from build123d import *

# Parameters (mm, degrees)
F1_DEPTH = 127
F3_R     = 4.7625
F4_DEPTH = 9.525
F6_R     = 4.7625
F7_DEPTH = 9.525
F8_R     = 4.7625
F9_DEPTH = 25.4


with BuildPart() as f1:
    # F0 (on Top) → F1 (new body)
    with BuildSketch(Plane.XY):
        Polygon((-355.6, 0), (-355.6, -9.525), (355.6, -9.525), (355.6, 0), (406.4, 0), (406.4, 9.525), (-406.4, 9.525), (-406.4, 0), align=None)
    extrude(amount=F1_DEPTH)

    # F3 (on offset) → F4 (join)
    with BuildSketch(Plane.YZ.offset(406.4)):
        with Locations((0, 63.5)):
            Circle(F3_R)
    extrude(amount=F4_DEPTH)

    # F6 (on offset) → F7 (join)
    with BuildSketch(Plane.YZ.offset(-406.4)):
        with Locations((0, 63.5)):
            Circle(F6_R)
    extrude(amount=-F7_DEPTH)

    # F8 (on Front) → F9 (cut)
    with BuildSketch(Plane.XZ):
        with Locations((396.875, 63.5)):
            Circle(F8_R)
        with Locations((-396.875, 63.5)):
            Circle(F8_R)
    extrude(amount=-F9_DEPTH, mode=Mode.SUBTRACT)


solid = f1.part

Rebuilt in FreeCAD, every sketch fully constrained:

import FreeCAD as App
import Part
import Sketcher

V = App.Vector
Q = App.Units.Quantity


def add_polygon(sketch, points):
    """Adds a closed chain of lines whose ends are joined by coincident constraints."""
    first, n = sketch.GeometryCount, len(points)
    for a, b in zip(points, points[1:] + points[:1]):
        sketch.addGeometry(Part.LineSegment(App.Vector(*a, 0), App.Vector(*b, 0)), False)
    for i in range(n):
        sketch.addConstraint(Sketcher.Constraint("Coincident", first + i, 2, first + (i + 1) % n, 1))

doc = App.newDocument("Part")
body = doc.addObject("PartDesign::Body", "Body")

# Sketch on XY plane
sketch1 = body.newObject("Sketcher::SketchObject", "Sketch")
sketch1.AttachmentSupport = (doc.getObject("XY_Plane"), [""])
sketch1.MapMode = "FlatFace"
add_polygon(sketch1, [(-356, 0), (-356, -10), (356, -10), (356, 0), (406, 0), (406, 10), (-406, 10), (-406, 0)])  # lines 0-7
sketch1.addConstraint(Sketcher.Constraint("Vertical", 0))
sketch1.addConstraint(Sketcher.Constraint("Horizontal", 1))
sketch1.addConstraint(Sketcher.Constraint("Vertical", 2))
sketch1.addConstraint(Sketcher.Constraint("Horizontal", 3))
sketch1.addConstraint(Sketcher.Constraint("Vertical", 4))
sketch1.addConstraint(Sketcher.Constraint("Horizontal", 5))
sketch1.addConstraint(Sketcher.Constraint("Vertical", 6))
sketch1.addConstraint(Sketcher.Constraint("Horizontal", 7))
sketch1.addConstraint(Sketcher.Constraint("Symmetric", 3, 2, 6, 2, -1, 1))
sketch1.addConstraint(Sketcher.Constraint("Symmetric", 2, 2, 7, 2, -2))
sketch1.addConstraint(Sketcher.Constraint("Equal", 2, 4))
sketch1.addConstraint(Sketcher.Constraint("DistanceX", 1, 1, 1, 2, Q("28 in")))
sketch1.addConstraint(Sketcher.Constraint("DistanceX", 3, 1, 3, 2, Q("2 in")))
sketch1.addConstraint(Sketcher.Constraint("DistanceY", 0, 2, 0, 1, Q("0.375 in")))
pad1 = body.newObject("PartDesign::Pad", "Pad")
pad1.Profile = sketch1
pad1.Length = Q("5 in")

# Sketch on YZ plane
sketch2 = body.newObject("Sketcher::SketchObject", "Sketch001")
sketch2.AttachmentSupport = (doc.getObject("YZ_Plane"), [""])
sketch2.MapMode = "FlatFace"
sketch2.AttachmentOffset = App.Placement(V(0, 0, 16 * 25.4), App.Rotation())
sketch2.addGeometry(Part.Circle(V(0, 63.5, 0), V(0, 0, 1), 4.8), False)
sketch2.addConstraint(Sketcher.Constraint("PointOnObject", 0, 3, -2))
sketch2.addConstraint(Sketcher.Constraint("Diameter", 0, Q("0.375 in")))
sketch2.addConstraint(Sketcher.Constraint("DistanceY", -1, 1, 0, 3, Q("2.5 in")))
pad2 = body.newObject("PartDesign::Pad", "Pad001")
pad2.Profile = sketch2
pad2.Length = Q("0.375 in")

# Sketch on YZ plane
sketch3 = body.newObject("Sketcher::SketchObject", "Sketch002")
sketch3.AttachmentSupport = (doc.getObject("YZ_Plane"), [""])
sketch3.MapMode = "FlatFace"
sketch3.AttachmentOffset = App.Placement(V(0, 0, -16 * 25.4), App.Rotation())
sketch3.addGeometry(Part.Circle(V(0, 63.5, 0), V(0, 0, 1), 4.8), False)
sketch3.addConstraint(Sketcher.Constraint("PointOnObject", 0, 3, -2))
sketch3.addConstraint(Sketcher.Constraint("Diameter", 0, Q("0.375 in")))
sketch3.addConstraint(Sketcher.Constraint("DistanceY", -1, 1, 0, 3, Q("2.5 in")))
pad3 = body.newObject("PartDesign::Pad", "Pad002")
pad3.Profile = sketch3
pad3.Length = Q("0.375 in")
pad3.Reversed = True

# Sketch on XZ plane
sketch4 = body.newObject("Sketcher::SketchObject", "Sketch003")
sketch4.AttachmentSupport = (doc.getObject("XZ_Plane"), [""])
sketch4.MapMode = "FlatFace"
sketch4.addGeometry(Part.Circle(V(396.9, 63.5, 0), V(0, 0, 1), 4.8), False)
sketch4.addGeometry(Part.Circle(V(-396.9, 63.5, 0), V(0, 0, 1), 4.8), False)
sketch4.addConstraint(Sketcher.Constraint("Equal", 0, 1))
sketch4.addConstraint(Sketcher.Constraint("Symmetric", 0, 3, 1, 3, -2))
sketch4.addConstraint(Sketcher.Constraint("Diameter", 0, Q("0.375 in")))
sketch4.addConstraint(Sketcher.Constraint("DistanceY", -1, 1, 0, 3, Q("2.5 in")))
sketch4.addConstraint(Sketcher.Constraint("DistanceX", 1, 3, 0, 3, Q("31.25 in")))
pocket1 = body.newObject("PartDesign::Pocket", "Pocket")
pocket1.Profile = sketch4
pocket1.Length = Q("1 in")

doc.recompute()
